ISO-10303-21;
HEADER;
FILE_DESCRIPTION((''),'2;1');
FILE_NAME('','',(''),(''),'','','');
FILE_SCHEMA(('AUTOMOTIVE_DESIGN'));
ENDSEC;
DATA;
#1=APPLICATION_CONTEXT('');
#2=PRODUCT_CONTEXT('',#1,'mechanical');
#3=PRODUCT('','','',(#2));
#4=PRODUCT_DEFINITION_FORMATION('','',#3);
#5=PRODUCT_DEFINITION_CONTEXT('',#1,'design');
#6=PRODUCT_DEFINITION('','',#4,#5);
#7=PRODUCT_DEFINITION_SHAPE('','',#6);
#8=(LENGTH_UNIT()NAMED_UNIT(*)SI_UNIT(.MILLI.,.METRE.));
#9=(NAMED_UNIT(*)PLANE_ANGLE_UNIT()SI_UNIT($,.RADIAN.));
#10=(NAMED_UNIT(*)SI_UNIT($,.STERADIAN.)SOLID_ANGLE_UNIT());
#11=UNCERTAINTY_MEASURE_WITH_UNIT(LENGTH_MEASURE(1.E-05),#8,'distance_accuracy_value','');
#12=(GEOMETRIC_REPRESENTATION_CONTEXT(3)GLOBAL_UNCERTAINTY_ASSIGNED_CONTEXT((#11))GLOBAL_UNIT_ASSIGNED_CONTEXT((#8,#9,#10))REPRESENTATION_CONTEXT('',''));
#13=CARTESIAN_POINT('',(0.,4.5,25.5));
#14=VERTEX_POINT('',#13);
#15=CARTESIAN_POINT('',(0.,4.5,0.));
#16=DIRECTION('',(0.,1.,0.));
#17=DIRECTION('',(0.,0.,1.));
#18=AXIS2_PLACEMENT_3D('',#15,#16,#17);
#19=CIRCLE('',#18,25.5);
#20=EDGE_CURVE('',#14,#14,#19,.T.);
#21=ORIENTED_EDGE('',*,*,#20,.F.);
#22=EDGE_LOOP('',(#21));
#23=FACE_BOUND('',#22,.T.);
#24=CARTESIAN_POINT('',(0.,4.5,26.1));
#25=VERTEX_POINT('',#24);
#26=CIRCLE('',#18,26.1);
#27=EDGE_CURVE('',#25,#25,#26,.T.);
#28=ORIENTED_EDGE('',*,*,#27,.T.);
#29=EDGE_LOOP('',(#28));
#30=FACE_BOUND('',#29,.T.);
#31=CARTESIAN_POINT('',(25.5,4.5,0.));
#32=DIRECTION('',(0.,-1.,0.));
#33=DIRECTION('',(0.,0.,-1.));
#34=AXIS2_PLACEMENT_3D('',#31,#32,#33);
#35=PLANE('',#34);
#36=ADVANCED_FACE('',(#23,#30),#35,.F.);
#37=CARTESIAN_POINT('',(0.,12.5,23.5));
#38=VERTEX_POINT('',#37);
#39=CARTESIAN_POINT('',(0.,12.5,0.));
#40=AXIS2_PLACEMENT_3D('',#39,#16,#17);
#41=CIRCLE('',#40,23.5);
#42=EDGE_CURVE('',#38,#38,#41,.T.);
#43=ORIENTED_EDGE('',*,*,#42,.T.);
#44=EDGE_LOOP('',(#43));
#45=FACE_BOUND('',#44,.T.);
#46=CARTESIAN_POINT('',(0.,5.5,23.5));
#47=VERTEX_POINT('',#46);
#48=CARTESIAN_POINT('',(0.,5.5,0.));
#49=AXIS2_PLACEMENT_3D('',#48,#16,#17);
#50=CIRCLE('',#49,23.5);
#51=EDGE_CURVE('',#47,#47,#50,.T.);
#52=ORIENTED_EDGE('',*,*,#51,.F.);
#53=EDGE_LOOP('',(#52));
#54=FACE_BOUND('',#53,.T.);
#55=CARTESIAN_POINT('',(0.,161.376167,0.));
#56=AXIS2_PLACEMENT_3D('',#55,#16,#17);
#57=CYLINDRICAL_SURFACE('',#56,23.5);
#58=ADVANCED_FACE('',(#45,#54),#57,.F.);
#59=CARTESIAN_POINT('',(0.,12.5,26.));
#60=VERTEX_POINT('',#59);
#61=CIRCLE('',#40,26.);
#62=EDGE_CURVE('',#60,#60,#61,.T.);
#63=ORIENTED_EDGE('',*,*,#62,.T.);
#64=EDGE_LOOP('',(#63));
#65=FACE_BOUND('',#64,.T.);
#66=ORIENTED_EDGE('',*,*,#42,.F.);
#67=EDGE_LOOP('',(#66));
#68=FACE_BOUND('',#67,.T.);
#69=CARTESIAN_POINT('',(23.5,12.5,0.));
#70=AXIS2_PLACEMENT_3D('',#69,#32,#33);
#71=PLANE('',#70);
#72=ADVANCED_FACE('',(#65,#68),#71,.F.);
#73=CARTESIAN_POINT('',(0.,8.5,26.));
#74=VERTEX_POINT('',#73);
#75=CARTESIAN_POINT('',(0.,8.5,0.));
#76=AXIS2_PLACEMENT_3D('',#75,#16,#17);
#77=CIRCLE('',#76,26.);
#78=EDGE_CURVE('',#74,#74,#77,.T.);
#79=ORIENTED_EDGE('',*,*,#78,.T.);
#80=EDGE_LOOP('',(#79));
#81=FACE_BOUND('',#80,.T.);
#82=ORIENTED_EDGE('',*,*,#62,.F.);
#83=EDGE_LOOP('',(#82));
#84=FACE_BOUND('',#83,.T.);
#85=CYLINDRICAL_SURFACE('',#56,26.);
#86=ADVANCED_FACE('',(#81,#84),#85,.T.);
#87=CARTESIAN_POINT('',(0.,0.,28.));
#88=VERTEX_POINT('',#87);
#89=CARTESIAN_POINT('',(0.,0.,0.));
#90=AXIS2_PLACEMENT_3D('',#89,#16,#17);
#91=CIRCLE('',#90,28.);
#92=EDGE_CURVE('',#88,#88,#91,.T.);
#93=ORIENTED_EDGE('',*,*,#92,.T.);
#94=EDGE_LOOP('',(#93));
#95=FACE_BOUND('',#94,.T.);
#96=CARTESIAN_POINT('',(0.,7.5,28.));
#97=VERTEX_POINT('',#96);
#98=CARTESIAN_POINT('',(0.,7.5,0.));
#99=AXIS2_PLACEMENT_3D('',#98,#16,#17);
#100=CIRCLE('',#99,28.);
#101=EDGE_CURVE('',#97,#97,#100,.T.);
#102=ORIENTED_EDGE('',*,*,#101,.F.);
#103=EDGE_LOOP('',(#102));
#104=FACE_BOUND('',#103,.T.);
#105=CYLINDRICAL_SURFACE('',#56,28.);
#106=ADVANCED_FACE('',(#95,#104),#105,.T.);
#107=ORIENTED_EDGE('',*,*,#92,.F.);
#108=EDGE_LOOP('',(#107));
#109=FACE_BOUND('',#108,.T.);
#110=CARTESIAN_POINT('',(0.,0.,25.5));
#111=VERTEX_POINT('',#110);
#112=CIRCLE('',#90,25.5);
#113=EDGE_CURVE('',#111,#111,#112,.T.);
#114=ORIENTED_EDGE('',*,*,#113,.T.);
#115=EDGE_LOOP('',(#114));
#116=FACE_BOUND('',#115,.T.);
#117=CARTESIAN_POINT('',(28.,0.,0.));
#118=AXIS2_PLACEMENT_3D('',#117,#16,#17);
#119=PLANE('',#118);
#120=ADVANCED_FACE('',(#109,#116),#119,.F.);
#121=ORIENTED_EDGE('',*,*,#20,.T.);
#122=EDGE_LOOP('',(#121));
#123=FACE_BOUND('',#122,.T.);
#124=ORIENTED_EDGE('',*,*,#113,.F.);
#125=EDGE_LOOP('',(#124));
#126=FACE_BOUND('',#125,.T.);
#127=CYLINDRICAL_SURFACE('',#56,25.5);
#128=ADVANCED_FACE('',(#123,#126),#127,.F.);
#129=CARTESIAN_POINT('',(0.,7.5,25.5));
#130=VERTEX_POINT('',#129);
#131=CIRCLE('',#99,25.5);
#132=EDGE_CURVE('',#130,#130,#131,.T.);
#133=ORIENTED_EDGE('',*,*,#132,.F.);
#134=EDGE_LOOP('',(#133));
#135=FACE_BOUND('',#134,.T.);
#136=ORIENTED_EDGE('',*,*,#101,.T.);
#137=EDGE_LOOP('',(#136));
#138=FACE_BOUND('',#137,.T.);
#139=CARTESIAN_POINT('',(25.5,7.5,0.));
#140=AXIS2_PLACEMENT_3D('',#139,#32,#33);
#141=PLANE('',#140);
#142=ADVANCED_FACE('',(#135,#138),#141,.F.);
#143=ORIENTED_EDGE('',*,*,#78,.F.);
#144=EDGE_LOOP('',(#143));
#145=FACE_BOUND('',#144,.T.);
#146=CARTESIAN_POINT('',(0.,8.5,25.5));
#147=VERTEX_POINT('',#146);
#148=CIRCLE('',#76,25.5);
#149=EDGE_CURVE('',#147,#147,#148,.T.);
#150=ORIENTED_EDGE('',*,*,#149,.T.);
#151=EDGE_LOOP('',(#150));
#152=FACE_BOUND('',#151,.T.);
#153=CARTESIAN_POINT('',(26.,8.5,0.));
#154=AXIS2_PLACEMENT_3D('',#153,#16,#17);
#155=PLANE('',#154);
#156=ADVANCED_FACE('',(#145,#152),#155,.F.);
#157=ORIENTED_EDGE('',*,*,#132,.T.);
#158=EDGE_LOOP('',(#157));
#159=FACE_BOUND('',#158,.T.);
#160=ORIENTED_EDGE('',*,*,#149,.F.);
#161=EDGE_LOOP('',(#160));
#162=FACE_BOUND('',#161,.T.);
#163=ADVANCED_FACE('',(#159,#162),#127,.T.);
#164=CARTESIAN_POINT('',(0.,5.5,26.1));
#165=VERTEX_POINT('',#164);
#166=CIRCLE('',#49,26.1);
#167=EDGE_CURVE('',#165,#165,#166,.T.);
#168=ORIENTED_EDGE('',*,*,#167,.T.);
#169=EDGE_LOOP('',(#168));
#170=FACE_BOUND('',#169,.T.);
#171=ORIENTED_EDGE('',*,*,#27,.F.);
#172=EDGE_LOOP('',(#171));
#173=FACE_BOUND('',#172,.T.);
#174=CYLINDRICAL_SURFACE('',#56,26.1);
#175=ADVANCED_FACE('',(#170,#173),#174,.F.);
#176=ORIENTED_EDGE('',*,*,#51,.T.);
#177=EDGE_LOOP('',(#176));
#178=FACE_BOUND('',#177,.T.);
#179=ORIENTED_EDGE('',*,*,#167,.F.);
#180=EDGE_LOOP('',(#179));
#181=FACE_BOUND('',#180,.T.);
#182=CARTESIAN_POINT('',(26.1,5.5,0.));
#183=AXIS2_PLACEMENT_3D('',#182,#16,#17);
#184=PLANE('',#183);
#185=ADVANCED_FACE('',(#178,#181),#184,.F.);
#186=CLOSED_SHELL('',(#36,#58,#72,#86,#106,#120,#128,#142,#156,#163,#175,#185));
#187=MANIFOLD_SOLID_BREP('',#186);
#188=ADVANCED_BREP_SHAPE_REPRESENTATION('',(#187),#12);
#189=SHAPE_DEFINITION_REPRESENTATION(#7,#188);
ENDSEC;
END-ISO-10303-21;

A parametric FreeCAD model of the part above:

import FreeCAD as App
import Part
import Sketcher
Q = App.Units.Quantity

doc = App.newDocument("Part")
body = doc.addObject("PartDesign::Body", "Body")

sketch1 = body.newObject("Sketcher::SketchObject", "Sketch")
sketch1.AttachmentSupport = (doc.getObject("XY_Plane"), [""])
sketch1.MapMode = "FlatFace"
sketch1.addGeometry(Part.LineSegment(App.Vector(26, 12.5, 0), App.Vector(23.5, 12.5, 0)), False)
sketch1.addGeometry(Part.LineSegment(App.Vector(23.5, 12.5, 0), App.Vector(23.5, 5.5, 0)), False)
sketch1.addGeometry(Part.LineSegment(App.Vector(23.5, 5.5, 0), App.Vector(26.1, 5.5, 0)), False)
sketch1.addGeometry(Part.LineSegment(App.Vector(26.1, 5.5, 0), App.Vector(26.1, 4.5, 0)), False)
sketch1.addGeometry(Part.LineSegment(App.Vector(26.1, 4.5, 0), App.Vector(25.5, 4.5, 0)), False)
sketch1.addGeometry(Part.LineSegment(App.Vector(25.5, 4.5, 0), App.Vector(25.5, 0, 0)), False)
sketch1.addGeometry(Part.LineSegment(App.Vector(25.5, 0, 0), App.Vector(28, 0, 0)), False)
sketch1.addGeometry(Part.LineSegment(App.Vector(28, 0, 0), App.Vector(28, 7.5, 0)), False)
sketch1.addGeometry(Part.LineSegment(App.Vector(28, 7.5, 0), App.Vector(25.5, 7.5, 0)), False)
sketch1.addGeometry(Part.LineSegment(App.Vector(25.5, 7.5, 0), App.Vector(25.5, 8.5, 0)), False)
sketch1.addGeometry(Part.LineSegment(App.Vector(25.5, 8.5, 0), App.Vector(26, 8.5, 0)), False)
sketch1.addGeometry(Part.LineSegment(App.Vector(26, 8.5, 0), App.Vector(26, 12.5, 0)), False)
sketch1.addConstraint(Sketcher.Constraint("Coincident", 0, 2, 1, 1))
sketch1.addConstraint(Sketcher.Constraint("Coincident", 1, 2, 2, 1))
sketch1.addConstraint(Sketcher.Constraint("Coincident", 2, 2, 3, 1))
sketch1.addConstraint(Sketcher.Constraint("Coincident", 3, 2, 4, 1))
sketch1.addConstraint(Sketcher.Constraint("Coincident", 4, 2, 5, 1))
sketch1.addConstraint(Sketcher.Constraint("Coincident", 5, 2, 6, 1))
sketch1.addConstraint(Sketcher.Constraint("Coincident", 6, 2, 7, 1))
sketch1.addConstraint(Sketcher.Constraint("Coincident", 7, 2, 8, 1))
sketch1.addConstraint(Sketcher.Constraint("Coincident", 8, 2, 9, 1))
sketch1.addConstraint(Sketcher.Constraint("Coincident", 9, 2, 10, 1))
sketch1.addConstraint(Sketcher.Constraint("Coincident", 10, 2, 11, 1))
sketch1.addConstraint(Sketcher.Constraint("Coincident", 11, 2, 0, 1))
sketch1.addConstraint(Sketcher.Constraint("Horizontal", 0))
sketch1.addConstraint(Sketcher.Constraint("Vertical", 1))
sketch1.addConstraint(Sketcher.Constraint("Horizontal", 2))
sketch1.addConstraint(Sketcher.Constraint("Vertical", 3))
sketch1.addConstraint(Sketcher.Constraint("Horizontal", 4))
sketch1.addConstraint(Sketcher.Constraint("Vertical", 5))
sketch1.addConstraint(Sketcher.Constraint("Horizontal", 6))
sketch1.addConstraint(Sketcher.Constraint("Vertical", 7))
sketch1.addConstraint(Sketcher.Constraint("Horizontal", 8))
sketch1.addConstraint(Sketcher.Constraint("Vertical", 9))
sketch1.addConstraint(Sketcher.Constraint("Horizontal", 10))
sketch1.addConstraint(Sketcher.Constraint("Vertical", 11))
sketch1.addConstraint(Sketcher.Constraint("PointOnObject", 5, 2, -1))
sketch1.addConstraint(Sketcher.Constraint("Vertical", 5, 2, 8, 2))
sketch1.addConstraint(Sketcher.Constraint("Equal", 0, 6))
sketch1.addConstraint(Sketcher.Constraint("Equal", 3, 9))
sketch1.addConstraint(Sketcher.Constraint("DistanceY", 1, 2, 1, 1, Q("7 mm")))
sketch1.addConstraint(Sketcher.Constraint("DistanceY", 3, 2, 3, 1, Q("1 mm")))
sketch1.addConstraint(Sketcher.Constraint("DistanceY", 11, 1, 11, 2, Q("4 mm")))
sketch1.addConstraint(Sketcher.Constraint("DistanceX", 0, 2, 0, 1, Q("2.5 mm")))
sketch1.addConstraint(Sketcher.Constraint("DistanceX", 2, 1, 2, 2, Q("2.6 mm")))
sketch1.addConstraint(Sketcher.Constraint("DistanceX", 4, 2, 4, 1, Q("0.6 mm")))
sketch1.addConstraint(Sketcher.Constraint("DistanceY", 5, 2, 5, 1, Q("4.5 mm")))
sketch1.addConstraint(Sketcher.Constraint("DistanceX", -1, 1, 6, 2, Q("28 mm")))
revolution = body.newObject("PartDesign::Revolution", "Revolution")
revolution.Profile = sketch1
revolution.ReferenceAxis = (sketch1, ["V_Axis"])
revolution.Angle = 360

doc.recompute()
